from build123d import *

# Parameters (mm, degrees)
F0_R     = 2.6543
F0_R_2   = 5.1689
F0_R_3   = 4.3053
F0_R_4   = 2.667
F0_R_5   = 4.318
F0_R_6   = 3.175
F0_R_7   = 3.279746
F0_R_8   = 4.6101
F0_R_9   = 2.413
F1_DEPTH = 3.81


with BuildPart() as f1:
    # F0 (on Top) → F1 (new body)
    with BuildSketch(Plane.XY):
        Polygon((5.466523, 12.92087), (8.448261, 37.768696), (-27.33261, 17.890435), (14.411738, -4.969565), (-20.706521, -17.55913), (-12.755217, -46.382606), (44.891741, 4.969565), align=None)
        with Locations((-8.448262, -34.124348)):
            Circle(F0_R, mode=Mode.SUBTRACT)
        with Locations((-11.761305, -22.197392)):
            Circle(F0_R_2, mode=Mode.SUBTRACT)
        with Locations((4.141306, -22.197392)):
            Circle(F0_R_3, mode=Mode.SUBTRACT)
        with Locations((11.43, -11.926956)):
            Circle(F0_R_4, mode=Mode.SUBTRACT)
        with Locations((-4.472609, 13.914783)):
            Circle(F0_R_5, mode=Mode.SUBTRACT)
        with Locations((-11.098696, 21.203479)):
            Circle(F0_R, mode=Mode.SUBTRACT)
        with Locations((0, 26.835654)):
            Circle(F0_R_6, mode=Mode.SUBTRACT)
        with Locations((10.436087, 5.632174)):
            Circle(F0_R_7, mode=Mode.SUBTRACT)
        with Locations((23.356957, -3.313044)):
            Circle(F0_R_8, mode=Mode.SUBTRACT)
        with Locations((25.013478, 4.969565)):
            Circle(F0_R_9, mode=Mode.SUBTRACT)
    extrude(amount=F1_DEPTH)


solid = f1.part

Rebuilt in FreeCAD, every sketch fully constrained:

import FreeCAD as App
import Part
import Sketcher
from FreeCAD import Vector
Q = App.Units.Quantity


def add_polygon(sketch, points):
    """Adds a closed chain of lines whose ends are joined by coincident constraints."""
    first, n = sketch.GeometryCount, len(points)
    for a, b in zip(points, points[1:] + points[:1]):
        sketch.addGeometry(Part.LineSegment(App.Vector(*a, 0), App.Vector(*b, 0)), False)
    for i in range(n):
        sketch.addConstraint(Sketcher.Constraint("Coincident", first + i, 2, first + (i + 1) % n, 1))

doc = App.newDocument("Part")
body = doc.addObject("PartDesign::Body", "Body")

sketch1 = body.newObject("Sketcher::SketchObject", "Sketch")
sketch1.AttachmentSupport = (doc.getObject("XY_Plane"), [""])
sketch1.MapMode = "FlatFace"
add_polygon(sketch1, [(5.5, 12.9), (8.4, 37.8), (-27.3, 17.9), (14.4, -5), (-20.7, -17.6), (-12.8, -46.4), (44.9, 5)])
sketch1.addGeometry(Part.Circle(Vector(-8.4, -34.1, 0), Vector(0, 0, 1), 2.7), False)
sketch1.addGeometry(Part.Circle(Vector(-11.8, -22.2, 0), Vector(0, 0, 1), 5.2), False)
sketch1.addGeometry(Part.Circle(Vector(4.1, -22.2, 0), Vector(0, 0, 1), 4.3), False)
sketch1.addGeometry(Part.Circle(Vector(11.4, -11.9, 0), Vector(0, 0, 1), 2.7), False)
sketch1.addGeometry(Part.Circle(Vector(-11.1, 21.2, 0), Vector(0, 0, 1), 2.7), False)
sketch1.addGeometry(Part.Circle(Vector(-4.5, 13.9, 0), Vector(0, 0, 1), 4.3), False)
sketch1.addGeometry(Part.Circle(Vector(0, 26.8, 0), Vector(0, 0, 1), 3.2), False)
sketch1.addGeometry(Part.Circle(Vector(10.4, 5.6, 0), Vector(0, 0, 1), 3.3), False)
sketch1.addGeometry(Part.Circle(Vector(23.4, -3.3, 0), Vector(0, 0, 1), 4.6), False)
sketch1.addGeometry(Part.Circle(Vector(25, 5, 0), Vector(0, 0, 1), 2.4), False)
sketch1.addConstraint([
    Sketcher.Constraint("Equal", 7, 11),
    Sketcher.Constraint("PointOnObject", 13, 3, -2),
    Sketcher.Constraint("Horizontal", 8, 3, 9, 3),
    Sketcher.Constraint("Horizontal", 16, 3, 5, 2),
    Sketcher.Constraint("Diameter", 10, Q("0.21 in")),
    Sketcher.Constraint("Diameter", 12, Q("0.34 in")),
    Sketcher.Constraint("Diameter", 13, Q("0.25 in")),
    Sketcher.Constraint("Diameter", 16, Q("0.19 in")),
    Sketcher.Constraint("Diameter", 7, Q("0.209 in")),
    Sketcher.Constraint("Diameter", 8, Q("0.407 in")),
    Sketcher.Constraint("Diameter", 9, Q("0.339 in")),
    Sketcher.Constraint("Diameter", 15, Q("0.363 in")),
    Sketcher.Constraint("DistanceX", 11, 3, 9, 3, Q("0.6000001 in")),
    Sketcher.Constraint("DistanceX", 1, 2, 12, 3, Q("0.9 in")),
    Sketcher.Constraint("DistanceX", 2, 2, 5, 2, Q("1.2000001 in")),
    Sketcher.Constraint("DistanceX", -1, 1, 10, 3, Q("0.45 in")),
    Sketcher.Constraint("Diameter", 14, Q("6.559492 mm")),
    Sketcher.Constraint("Distance", 4, Q("29.9001 mm")),
    Sketcher.Constraint("DistanceY", 15, 3, 13, 3, Q("30.148698 mm")),
    Sketcher.Constraint("Distance", 0, Q("25.026091 mm")),
    Sketcher.Constraint("Distance", 3, Q("37.306692 mm")),
    Sketcher.Constraint("Distance", 6, Q("40.219039 mm")),
    Sketcher.Constraint("DistanceY", -1, 1, 11, 3, Q("21.203479 mm")),
    Sketcher.Constraint("DistanceX", 12, 3, -1, 1, Q("4.472609 mm")),
    Sketcher.Constraint("DistanceX", -1, 1, 0, 2, Q("8.448261 mm")),
    Sketcher.Constraint("DistanceX", 3, 2, -1, 1, Q("20.706521 mm")),
    Sketcher.Constraint("DistanceY", 3, 2, -1, 1, Q("17.55913 mm")),
    Sketcher.Constraint("DistanceX", -1, 1, 5, 2, Q("44.891741 mm")),
    Sketcher.Constraint("DistanceY", -1, 1, 6, 2, Q("12.92087 mm")),
    Sketcher.Constraint("DistanceX", 8, 3, 9, 3, Q("15.902611 mm")),
    Sketcher.Constraint("DistanceX", 7, 3, 10, 3, Q("19.878262 mm")),
    Sketcher.Constraint("DistanceY", 7, 3, 10, 3, Q("22.197392 mm")),
    Sketcher.Constraint("DistanceY", 8, 3, 11, 3, Q("43.400871 mm")),
    Sketcher.Constraint("DistanceY", 10, 3, 12, 3, Q("25.841739 mm")),
    Sketcher.Constraint("DistanceY", 12, 3, 13, 3, Q("12.920871 mm")),
    Sketcher.Constraint("DistanceY", 14, 3, 12, 3, Q("8.282609 mm")),
    Sketcher.Constraint("DistanceX", 9, 3, 14, 3, Q("6.294781 mm")),
    Sketcher.Constraint("DistanceX", 14, 3, 15, 3, Q("12.92087 mm")),
    Sketcher.Constraint("DistanceX", 15, 3, 16, 3, Q("1.656521 mm")),
    Sketcher.Constraint("DistanceY", 15, 3, 16, 3, Q("8.282609 mm")),
    Sketcher.Constraint("DistanceY", 13, 3, 0, 2, Q("10.933042 mm")),
    Sketcher.Constraint("DistanceY", 1, 2, 13, 3, Q("8.945219 mm")),
    Sketcher.Constraint("DistanceX", 2, 2, 15, 3, Q("8.945219 mm")),
    Sketcher.Constraint("DistanceY", 4, 2, 7, 3, Q("12.258258 mm")),
])
pad1 = body.newObject("PartDesign::Pad", "Pad")
pad1.Profile = sketch1
pad1.Length = Q("0.15 in")

doc.recompute()
